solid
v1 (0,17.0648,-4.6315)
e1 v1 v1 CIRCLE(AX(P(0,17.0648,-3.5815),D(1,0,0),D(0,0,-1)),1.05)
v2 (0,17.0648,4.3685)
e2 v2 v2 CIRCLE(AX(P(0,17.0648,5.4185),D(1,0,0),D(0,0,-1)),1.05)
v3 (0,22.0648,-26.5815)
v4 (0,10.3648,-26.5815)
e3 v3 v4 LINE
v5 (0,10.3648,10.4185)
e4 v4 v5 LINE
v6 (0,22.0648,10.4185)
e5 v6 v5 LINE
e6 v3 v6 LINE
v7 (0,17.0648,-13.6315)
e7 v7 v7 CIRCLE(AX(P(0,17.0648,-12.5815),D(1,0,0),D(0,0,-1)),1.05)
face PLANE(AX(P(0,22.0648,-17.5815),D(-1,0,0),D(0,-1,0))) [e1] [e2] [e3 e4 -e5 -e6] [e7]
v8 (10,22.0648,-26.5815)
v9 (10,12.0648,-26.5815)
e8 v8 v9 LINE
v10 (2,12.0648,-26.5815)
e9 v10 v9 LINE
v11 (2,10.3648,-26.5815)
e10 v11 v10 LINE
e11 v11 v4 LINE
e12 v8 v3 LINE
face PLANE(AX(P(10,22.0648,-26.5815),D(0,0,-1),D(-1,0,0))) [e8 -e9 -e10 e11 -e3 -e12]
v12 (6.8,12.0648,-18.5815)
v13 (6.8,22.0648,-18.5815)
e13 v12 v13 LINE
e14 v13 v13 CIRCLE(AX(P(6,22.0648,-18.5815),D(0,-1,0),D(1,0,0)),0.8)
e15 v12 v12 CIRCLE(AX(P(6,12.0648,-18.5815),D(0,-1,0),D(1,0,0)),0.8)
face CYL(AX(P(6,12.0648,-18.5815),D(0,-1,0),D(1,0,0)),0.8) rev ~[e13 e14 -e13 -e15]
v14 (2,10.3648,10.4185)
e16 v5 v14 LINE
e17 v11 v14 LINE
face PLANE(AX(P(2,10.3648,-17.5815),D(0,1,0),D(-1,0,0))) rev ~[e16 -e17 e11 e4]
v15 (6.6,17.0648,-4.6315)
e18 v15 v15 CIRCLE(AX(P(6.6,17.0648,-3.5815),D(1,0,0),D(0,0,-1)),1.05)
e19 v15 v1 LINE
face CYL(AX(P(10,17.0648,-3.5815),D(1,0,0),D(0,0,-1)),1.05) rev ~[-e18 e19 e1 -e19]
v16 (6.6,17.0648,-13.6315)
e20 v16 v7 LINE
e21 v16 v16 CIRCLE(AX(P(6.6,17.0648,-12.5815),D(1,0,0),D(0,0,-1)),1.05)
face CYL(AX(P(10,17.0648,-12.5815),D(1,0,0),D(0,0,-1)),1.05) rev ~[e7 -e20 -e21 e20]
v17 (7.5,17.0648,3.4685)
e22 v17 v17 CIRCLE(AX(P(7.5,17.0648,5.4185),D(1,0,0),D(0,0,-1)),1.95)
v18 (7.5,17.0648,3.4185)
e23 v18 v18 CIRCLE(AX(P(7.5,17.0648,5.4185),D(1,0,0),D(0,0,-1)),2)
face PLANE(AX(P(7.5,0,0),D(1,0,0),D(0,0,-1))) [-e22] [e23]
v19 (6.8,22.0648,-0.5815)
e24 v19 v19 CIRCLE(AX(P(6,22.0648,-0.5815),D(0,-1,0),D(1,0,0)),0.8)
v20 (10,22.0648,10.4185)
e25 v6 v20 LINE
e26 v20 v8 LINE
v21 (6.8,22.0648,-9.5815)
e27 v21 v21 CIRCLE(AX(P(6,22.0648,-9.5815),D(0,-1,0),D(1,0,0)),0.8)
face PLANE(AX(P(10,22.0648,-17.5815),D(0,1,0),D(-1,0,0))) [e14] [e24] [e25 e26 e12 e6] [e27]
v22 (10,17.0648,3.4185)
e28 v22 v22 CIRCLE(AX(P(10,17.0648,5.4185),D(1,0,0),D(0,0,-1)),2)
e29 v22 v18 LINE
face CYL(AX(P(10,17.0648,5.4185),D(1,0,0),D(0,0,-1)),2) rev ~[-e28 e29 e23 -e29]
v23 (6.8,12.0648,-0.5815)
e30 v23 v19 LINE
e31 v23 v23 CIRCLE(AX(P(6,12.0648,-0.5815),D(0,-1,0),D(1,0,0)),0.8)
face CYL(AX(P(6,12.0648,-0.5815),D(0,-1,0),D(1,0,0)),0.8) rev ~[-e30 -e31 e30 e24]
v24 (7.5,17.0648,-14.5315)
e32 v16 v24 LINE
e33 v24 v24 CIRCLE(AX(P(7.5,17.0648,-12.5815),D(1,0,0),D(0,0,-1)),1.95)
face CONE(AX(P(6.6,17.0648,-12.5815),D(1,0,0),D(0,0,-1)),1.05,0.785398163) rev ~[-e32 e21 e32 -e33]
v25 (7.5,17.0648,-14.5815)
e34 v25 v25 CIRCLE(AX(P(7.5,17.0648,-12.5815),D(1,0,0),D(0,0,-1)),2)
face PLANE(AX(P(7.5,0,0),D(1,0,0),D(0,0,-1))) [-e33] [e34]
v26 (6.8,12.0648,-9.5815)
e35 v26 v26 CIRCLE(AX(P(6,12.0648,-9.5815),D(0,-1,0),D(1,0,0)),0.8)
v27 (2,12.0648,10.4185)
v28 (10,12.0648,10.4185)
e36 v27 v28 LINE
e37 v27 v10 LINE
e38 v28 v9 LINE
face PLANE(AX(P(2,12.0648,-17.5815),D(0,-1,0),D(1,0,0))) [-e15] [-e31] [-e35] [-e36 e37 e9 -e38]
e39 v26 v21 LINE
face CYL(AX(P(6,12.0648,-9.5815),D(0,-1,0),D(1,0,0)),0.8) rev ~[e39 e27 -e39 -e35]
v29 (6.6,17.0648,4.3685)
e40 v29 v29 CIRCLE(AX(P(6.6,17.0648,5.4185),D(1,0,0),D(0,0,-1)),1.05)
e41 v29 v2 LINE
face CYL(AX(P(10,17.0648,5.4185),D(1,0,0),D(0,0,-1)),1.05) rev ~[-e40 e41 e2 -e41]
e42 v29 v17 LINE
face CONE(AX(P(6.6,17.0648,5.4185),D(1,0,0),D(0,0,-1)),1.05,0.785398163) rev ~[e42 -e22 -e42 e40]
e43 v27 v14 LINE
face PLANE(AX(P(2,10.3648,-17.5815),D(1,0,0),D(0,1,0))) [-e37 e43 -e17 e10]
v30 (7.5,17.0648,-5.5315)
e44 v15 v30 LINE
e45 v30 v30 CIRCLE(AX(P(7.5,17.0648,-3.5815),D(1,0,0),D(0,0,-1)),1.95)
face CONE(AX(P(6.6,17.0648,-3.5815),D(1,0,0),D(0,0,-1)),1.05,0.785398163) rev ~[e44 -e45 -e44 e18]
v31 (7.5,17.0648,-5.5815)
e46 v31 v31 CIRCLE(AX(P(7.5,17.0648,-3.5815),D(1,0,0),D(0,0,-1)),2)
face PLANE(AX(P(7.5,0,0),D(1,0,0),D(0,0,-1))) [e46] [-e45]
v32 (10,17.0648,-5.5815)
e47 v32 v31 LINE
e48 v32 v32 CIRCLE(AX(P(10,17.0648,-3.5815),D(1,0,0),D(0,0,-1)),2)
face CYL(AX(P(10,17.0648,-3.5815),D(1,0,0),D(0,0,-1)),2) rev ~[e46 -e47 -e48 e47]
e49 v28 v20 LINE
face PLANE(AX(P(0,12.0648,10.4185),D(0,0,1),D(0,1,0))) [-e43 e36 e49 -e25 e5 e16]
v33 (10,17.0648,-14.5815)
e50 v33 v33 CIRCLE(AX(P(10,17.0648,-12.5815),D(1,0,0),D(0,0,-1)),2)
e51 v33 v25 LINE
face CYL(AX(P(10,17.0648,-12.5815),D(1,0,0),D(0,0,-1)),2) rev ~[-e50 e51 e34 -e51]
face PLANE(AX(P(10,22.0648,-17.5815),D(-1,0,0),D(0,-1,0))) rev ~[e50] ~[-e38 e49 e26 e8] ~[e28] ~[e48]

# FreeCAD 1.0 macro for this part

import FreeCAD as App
import Part
import Sketcher
Q = App.Units.Quantity


def edges_at(feature, points):
    """Names of the edges that pass closest to the given points."""
    edges = feature.Shape.Edges
    near = lambda p: min(range(len(edges)), key=lambda i: edges[i].distToShape(Part.Vertex(*p))[0])
    return sorted({f"Edge{near(p) + 1}" for p in points})


def add_polygon(sketch, points):
    """Adds a closed chain of lines whose ends are joined by coincident constraints."""
    first, n = sketch.GeometryCount, len(points)
    for a, b in zip(points, points[1:] + points[:1]):
        sketch.addGeometry(Part.LineSegment(App.Vector(*a, 0), App.Vector(*b, 0)), False)
    for i in range(n):
        sketch.addConstraint(Sketcher.Constraint("Coincident", first + i, 2, first + (i + 1) % n, 1))

doc = App.newDocument("Part")
body = doc.addObject("PartDesign::Body", "Body")

# Sketch on YZ plane
sketch1 = body.newObject("Sketcher::SketchObject", "Sketch")
sketch1.AttachmentSupport = (doc.getObject("YZ_Plane"), [""])
sketch1.MapMode = "FlatFace"
add_polygon(sketch1, [(22, 10), (12, 10), (12, -18), (22, -18)])  # lines 0-3
sketch1.addConstraint([
    Sketcher.Constraint("Horizontal", 0),
    Sketcher.Constraint("Vertical", 1),
    Sketcher.Constraint("Horizontal", 2),
    Sketcher.Constraint("Vertical", 3),
    Sketcher.Constraint("DistanceX", 0, 2, 0, 1, Q("10 mm")),
    Sketcher.Constraint("DistanceY", 1, 2, 1, 1, Q("28 mm")),
    Sketcher.Constraint("DistanceX", -1, 1, 0, 2, Q("12.0648 mm")),
    Sketcher.Constraint("DistanceY", -1, 1, 0, 2, Q("10.4185 mm")),
])
pad1 = body.newObject("PartDesign::Pad", "Pad")
pad1.Profile = sketch1
pad1.Length = 10

# Sketch on XZ plane
sketch2 = body.newObject("Sketcher::SketchObject", "Sketch001")
sketch2.AttachmentSupport = (doc.getObject("XZ_Plane"), [""])
sketch2.MapMode = "FlatFace"
sketch2.AttachmentOffset = App.Placement(App.Vector(0, 0, -12.0648), App.Rotation())
add_polygon(sketch2, [(2, 10.4), (0, 10.4), (0, -17.6), (2, -17.6)])  # lines 0-3
sketch2.addConstraint([
    Sketcher.Constraint("Horizontal", 0),
    Sketcher.Constraint("Vertical", 1),
    Sketcher.Constraint("Horizontal", 2),
    Sketcher.Constraint("Vertical", 3),
    Sketcher.Constraint("PointOnObject", 0, 2, -2),
    Sketcher.Constraint("DistanceX", 0, 2, 0, 1, Q("2 mm")),
    Sketcher.Constraint("DistanceY", 1, 2, 1, 1, Q("28 mm")),
    Sketcher.Constraint("DistanceY", -1, 1, 0, 2, Q("10.4185 mm")),
])
pad2 = body.newObject("PartDesign::Pad", "Pad001")
pad2.Profile = sketch2
pad2.Length = 1.7

# Sketch on XZ plane
sketch3 = body.newObject("Sketcher::SketchObject", "Sketch002")
sketch3.AttachmentSupport = (doc.getObject("XZ_Plane"), [""])
sketch3.MapMode = "FlatFace"
sketch3.AttachmentOffset = App.Placement(App.Vector(0, 0, -12.0648), App.Rotation())
sketch3.addGeometry([
    Part.Circle(App.Vector(6, -9.6, 0), App.Vector(0, 0, 1), 0.8),
    Part.Circle(App.Vector(6, -0.6, 0), App.Vector(0, 0, 1), 0.8),
], False)
sketch3.addConstraint([
    Sketcher.Constraint("Equal", 0, 1),
    Sketcher.Constraint("Vertical", 0, 3, 1, 3),
    Sketcher.Constraint("Diameter", 0, Q("1.6 mm")),
    Sketcher.Constraint("DistanceY", 0, 3, 1, 3, Q("9 mm")),
    Sketcher.Constraint("DistanceX", -1, 1, 0, 3, Q("6 mm")),
    Sketcher.Constraint("DistanceY", 0, 3, -1, 1, Q("9.5815 mm")),
])
pocket1 = body.newObject("PartDesign::Pocket", "Pocket")
pocket1.Profile = sketch3
pocket1.Type = "ThroughAll"

# Sketch on YZ plane
sketch4 = body.newObject("Sketcher::SketchObject", "Sketch003")
sketch4.AttachmentSupport = (doc.getObject("YZ_Plane"), [""])
sketch4.MapMode = "FlatFace"
sketch4.AttachmentOffset = App.Placement(App.Vector(0, 0, 10), App.Rotation())
sketch4.addGeometry([
    Part.Circle(App.Vector(17.1, 5.4, 0), App.Vector(0, 0, 1), 1.1),
    Part.Circle(App.Vector(17.1, -3.6, 0), App.Vector(0, 0, 1), 1.1),
    Part.Circle(App.Vector(17.1, -12.6, 0), App.Vector(0, 0, 1), 1.1),
], False)
sketch4.addConstraint([
    Sketcher.Constraint("Equal", 0, 1),
    Sketcher.Constraint("Equal", 1, 2),
    Sketcher.Constraint("Vertical", 0, 3, 1, 3),
    Sketcher.Constraint("Vertical", 1, 3, 2, 3),
    Sketcher.Constraint("Diameter", 0, Q("2.1 mm")),
    Sketcher.Constraint("DistanceY", 1, 3, 0, 3, Q("9 mm")),
    Sketcher.Constraint("DistanceY", 2, 3, 1, 3, Q("9 mm")),
    Sketcher.Constraint("DistanceX", -1, 1, 0, 3, Q("17.0648 mm")),
    Sketcher.Constraint("DistanceY", -1, 1, 0, 3, Q("5.4185 mm")),
])
pocket2 = body.newObject("PartDesign::Pocket", "Pocket001")
pocket2.Profile = sketch4
pocket2.Type = "ThroughAll"

# Sketch on YZ plane
sketch5 = body.newObject("Sketcher::SketchObject", "Sketch004")
sketch5.AttachmentSupport = (doc.getObject("YZ_Plane"), [""])
sketch5.MapMode = "FlatFace"
sketch5.AttachmentOffset = App.Placement(App.Vector(0, 0, 10), App.Rotation())
sketch5.addGeometry([
    Part.Circle(App.Vector(17.1, 5.4, 0), App.Vector(0, 0, 1), 2),  # 0
    Part.Circle(App.Vector(17.1, 5.4, 0), App.Vector(0, 0, 1), 1.1),  # 1
    Part.Circle(App.Vector(17.1, -3.6, 0), App.Vector(0, 0, 1), 2),  # 2
    Part.Circle(App.Vector(17.1, -3.6, 0), App.Vector(0, 0, 1), 1.1),  # 3
    Part.Circle(App.Vector(17.1, -12.6, 0), App.Vector(0, 0, 1), 2),  # 4
    Part.Circle(App.Vector(17.1, -12.6, 0), App.Vector(0, 0, 1), 1.1),  # 5
], False)
sketch5.addConstraint([
    Sketcher.Constraint("Coincident", 1, 3, 0, 3),
    Sketcher.Constraint("Coincident", 3, 3, 2, 3),
    Sketcher.Constraint("Coincident", 5, 3, 4, 3),
    Sketcher.Constraint("Equal", 0, 2),
    Sketcher.Constraint("Equal", 1, 3),
    Sketcher.Constraint("Equal", 2, 4),
    Sketcher.Constraint("Equal", 3, 5),
    Sketcher.Constraint("Vertical", 1, 3, 2, 3),
    Sketcher.Constraint("Vertical", 3, 3, 4, 3),
    Sketcher.Constraint("Diameter", 0, Q("4 mm")),
    Sketcher.Constraint("Diameter", 1, Q("2.1 mm")),
    Sketcher.Constraint("DistanceY", 2, 3, 0, 3, Q("9 mm")),
    Sketcher.Constraint("DistanceY", 4, 3, 2, 3, Q("9 mm")),
    Sketcher.Constraint("DistanceX", -1, 1, 0, 3, Q("17.0648 mm")),
    Sketcher.Constraint("DistanceY", -1, 1, 0, 3, Q("5.4185 mm")),
])
pocket3 = body.newObject("PartDesign::Pocket", "Pocket002")
pocket3.Profile = sketch5
pocket3.Length = 2.5
doc.recompute()

chamfer = body.newObject("PartDesign::Chamfer", "Chamfer")
chamfer.Base = (pocket3, edges_at(pocket3, [(7.5, 17.065, 6.468), (7.5, 17.065, -2.531), (7.5, 17.065, -11.531)]))
chamfer.Size = 0.9

# Sketch on XY plane
sketch6 = body.newObject("Sketcher::SketchObject", "Sketch005")
sketch6.AttachmentSupport = (doc.getObject("XY_Plane"), [""])
sketch6.MapMode = "FlatFace"
sketch6.AttachmentOffset = App.Placement(App.Vector(0, 0, -17.5815), App.Rotation())
add_polygon(sketch6, [(0, 22.1), (10, 22.1), (10, 12.1), (2, 12.1), (2, 10.4), (0, 10.4)])  # lines 0-5
sketch6.addConstraint([
    Sketcher.Constraint("Horizontal", 0),
    Sketcher.Constraint("Vertical", 1),
    Sketcher.Constraint("Horizontal", 2),
    Sketcher.Constraint("Vertical", 3),
    Sketcher.Constraint("Horizontal", 4),
    Sketcher.Constraint("Vertical", 5),
    Sketcher.Constraint("PointOnObject", 4, 2, -2),
    Sketcher.Constraint("Equal", 0, 1),
    Sketcher.Constraint("DistanceX", 0, 1, 0, 2, Q("10 mm")),
    Sketcher.Constraint("DistanceX", 2, 2, 2, 1, Q("8 mm")),
    Sketcher.Constraint("DistanceY", 3, 2, 3, 1, Q("1.7 mm")),
    Sketcher.Constraint("DistanceY", -1, 1, 0, 2, Q("22.0648 mm")),
])
pad3 = body.newObject("PartDesign::Pad", "Pad002")
pad3.Profile = sketch6
pad3.Length = 9
pad3.Reversed = True

# Sketch on XZ plane
sketch7 = body.newObject("Sketcher::SketchObject", "Sketch006")
sketch7.AttachmentSupport = (doc.getObject("XZ_Plane"), [""])
sketch7.MapMode = "FlatFace"
sketch7.AttachmentOffset = App.Placement(App.Vector(0, 0, -12.0648), App.Rotation())
sketch7.addGeometry(Part.Circle(App.Vector(6, -18.6, 0), App.Vector(0, 0, 1), 0.8), False)
sketch7.addConstraint([
    Sketcher.Constraint("Diameter", 0, Q("1.6 mm")),
    Sketcher.Constraint("DistanceX", -1, 1, 0, 3, Q("6 mm")),
    Sketcher.Constraint("DistanceY", 0, 3, -1, 1, Q("18.5815 mm")),
])
pocket4 = body.newObject("PartDesign::Pocket", "Pocket003")
pocket4.Profile = sketch7
pocket4.Type = "ThroughAll"

doc.recompute()
